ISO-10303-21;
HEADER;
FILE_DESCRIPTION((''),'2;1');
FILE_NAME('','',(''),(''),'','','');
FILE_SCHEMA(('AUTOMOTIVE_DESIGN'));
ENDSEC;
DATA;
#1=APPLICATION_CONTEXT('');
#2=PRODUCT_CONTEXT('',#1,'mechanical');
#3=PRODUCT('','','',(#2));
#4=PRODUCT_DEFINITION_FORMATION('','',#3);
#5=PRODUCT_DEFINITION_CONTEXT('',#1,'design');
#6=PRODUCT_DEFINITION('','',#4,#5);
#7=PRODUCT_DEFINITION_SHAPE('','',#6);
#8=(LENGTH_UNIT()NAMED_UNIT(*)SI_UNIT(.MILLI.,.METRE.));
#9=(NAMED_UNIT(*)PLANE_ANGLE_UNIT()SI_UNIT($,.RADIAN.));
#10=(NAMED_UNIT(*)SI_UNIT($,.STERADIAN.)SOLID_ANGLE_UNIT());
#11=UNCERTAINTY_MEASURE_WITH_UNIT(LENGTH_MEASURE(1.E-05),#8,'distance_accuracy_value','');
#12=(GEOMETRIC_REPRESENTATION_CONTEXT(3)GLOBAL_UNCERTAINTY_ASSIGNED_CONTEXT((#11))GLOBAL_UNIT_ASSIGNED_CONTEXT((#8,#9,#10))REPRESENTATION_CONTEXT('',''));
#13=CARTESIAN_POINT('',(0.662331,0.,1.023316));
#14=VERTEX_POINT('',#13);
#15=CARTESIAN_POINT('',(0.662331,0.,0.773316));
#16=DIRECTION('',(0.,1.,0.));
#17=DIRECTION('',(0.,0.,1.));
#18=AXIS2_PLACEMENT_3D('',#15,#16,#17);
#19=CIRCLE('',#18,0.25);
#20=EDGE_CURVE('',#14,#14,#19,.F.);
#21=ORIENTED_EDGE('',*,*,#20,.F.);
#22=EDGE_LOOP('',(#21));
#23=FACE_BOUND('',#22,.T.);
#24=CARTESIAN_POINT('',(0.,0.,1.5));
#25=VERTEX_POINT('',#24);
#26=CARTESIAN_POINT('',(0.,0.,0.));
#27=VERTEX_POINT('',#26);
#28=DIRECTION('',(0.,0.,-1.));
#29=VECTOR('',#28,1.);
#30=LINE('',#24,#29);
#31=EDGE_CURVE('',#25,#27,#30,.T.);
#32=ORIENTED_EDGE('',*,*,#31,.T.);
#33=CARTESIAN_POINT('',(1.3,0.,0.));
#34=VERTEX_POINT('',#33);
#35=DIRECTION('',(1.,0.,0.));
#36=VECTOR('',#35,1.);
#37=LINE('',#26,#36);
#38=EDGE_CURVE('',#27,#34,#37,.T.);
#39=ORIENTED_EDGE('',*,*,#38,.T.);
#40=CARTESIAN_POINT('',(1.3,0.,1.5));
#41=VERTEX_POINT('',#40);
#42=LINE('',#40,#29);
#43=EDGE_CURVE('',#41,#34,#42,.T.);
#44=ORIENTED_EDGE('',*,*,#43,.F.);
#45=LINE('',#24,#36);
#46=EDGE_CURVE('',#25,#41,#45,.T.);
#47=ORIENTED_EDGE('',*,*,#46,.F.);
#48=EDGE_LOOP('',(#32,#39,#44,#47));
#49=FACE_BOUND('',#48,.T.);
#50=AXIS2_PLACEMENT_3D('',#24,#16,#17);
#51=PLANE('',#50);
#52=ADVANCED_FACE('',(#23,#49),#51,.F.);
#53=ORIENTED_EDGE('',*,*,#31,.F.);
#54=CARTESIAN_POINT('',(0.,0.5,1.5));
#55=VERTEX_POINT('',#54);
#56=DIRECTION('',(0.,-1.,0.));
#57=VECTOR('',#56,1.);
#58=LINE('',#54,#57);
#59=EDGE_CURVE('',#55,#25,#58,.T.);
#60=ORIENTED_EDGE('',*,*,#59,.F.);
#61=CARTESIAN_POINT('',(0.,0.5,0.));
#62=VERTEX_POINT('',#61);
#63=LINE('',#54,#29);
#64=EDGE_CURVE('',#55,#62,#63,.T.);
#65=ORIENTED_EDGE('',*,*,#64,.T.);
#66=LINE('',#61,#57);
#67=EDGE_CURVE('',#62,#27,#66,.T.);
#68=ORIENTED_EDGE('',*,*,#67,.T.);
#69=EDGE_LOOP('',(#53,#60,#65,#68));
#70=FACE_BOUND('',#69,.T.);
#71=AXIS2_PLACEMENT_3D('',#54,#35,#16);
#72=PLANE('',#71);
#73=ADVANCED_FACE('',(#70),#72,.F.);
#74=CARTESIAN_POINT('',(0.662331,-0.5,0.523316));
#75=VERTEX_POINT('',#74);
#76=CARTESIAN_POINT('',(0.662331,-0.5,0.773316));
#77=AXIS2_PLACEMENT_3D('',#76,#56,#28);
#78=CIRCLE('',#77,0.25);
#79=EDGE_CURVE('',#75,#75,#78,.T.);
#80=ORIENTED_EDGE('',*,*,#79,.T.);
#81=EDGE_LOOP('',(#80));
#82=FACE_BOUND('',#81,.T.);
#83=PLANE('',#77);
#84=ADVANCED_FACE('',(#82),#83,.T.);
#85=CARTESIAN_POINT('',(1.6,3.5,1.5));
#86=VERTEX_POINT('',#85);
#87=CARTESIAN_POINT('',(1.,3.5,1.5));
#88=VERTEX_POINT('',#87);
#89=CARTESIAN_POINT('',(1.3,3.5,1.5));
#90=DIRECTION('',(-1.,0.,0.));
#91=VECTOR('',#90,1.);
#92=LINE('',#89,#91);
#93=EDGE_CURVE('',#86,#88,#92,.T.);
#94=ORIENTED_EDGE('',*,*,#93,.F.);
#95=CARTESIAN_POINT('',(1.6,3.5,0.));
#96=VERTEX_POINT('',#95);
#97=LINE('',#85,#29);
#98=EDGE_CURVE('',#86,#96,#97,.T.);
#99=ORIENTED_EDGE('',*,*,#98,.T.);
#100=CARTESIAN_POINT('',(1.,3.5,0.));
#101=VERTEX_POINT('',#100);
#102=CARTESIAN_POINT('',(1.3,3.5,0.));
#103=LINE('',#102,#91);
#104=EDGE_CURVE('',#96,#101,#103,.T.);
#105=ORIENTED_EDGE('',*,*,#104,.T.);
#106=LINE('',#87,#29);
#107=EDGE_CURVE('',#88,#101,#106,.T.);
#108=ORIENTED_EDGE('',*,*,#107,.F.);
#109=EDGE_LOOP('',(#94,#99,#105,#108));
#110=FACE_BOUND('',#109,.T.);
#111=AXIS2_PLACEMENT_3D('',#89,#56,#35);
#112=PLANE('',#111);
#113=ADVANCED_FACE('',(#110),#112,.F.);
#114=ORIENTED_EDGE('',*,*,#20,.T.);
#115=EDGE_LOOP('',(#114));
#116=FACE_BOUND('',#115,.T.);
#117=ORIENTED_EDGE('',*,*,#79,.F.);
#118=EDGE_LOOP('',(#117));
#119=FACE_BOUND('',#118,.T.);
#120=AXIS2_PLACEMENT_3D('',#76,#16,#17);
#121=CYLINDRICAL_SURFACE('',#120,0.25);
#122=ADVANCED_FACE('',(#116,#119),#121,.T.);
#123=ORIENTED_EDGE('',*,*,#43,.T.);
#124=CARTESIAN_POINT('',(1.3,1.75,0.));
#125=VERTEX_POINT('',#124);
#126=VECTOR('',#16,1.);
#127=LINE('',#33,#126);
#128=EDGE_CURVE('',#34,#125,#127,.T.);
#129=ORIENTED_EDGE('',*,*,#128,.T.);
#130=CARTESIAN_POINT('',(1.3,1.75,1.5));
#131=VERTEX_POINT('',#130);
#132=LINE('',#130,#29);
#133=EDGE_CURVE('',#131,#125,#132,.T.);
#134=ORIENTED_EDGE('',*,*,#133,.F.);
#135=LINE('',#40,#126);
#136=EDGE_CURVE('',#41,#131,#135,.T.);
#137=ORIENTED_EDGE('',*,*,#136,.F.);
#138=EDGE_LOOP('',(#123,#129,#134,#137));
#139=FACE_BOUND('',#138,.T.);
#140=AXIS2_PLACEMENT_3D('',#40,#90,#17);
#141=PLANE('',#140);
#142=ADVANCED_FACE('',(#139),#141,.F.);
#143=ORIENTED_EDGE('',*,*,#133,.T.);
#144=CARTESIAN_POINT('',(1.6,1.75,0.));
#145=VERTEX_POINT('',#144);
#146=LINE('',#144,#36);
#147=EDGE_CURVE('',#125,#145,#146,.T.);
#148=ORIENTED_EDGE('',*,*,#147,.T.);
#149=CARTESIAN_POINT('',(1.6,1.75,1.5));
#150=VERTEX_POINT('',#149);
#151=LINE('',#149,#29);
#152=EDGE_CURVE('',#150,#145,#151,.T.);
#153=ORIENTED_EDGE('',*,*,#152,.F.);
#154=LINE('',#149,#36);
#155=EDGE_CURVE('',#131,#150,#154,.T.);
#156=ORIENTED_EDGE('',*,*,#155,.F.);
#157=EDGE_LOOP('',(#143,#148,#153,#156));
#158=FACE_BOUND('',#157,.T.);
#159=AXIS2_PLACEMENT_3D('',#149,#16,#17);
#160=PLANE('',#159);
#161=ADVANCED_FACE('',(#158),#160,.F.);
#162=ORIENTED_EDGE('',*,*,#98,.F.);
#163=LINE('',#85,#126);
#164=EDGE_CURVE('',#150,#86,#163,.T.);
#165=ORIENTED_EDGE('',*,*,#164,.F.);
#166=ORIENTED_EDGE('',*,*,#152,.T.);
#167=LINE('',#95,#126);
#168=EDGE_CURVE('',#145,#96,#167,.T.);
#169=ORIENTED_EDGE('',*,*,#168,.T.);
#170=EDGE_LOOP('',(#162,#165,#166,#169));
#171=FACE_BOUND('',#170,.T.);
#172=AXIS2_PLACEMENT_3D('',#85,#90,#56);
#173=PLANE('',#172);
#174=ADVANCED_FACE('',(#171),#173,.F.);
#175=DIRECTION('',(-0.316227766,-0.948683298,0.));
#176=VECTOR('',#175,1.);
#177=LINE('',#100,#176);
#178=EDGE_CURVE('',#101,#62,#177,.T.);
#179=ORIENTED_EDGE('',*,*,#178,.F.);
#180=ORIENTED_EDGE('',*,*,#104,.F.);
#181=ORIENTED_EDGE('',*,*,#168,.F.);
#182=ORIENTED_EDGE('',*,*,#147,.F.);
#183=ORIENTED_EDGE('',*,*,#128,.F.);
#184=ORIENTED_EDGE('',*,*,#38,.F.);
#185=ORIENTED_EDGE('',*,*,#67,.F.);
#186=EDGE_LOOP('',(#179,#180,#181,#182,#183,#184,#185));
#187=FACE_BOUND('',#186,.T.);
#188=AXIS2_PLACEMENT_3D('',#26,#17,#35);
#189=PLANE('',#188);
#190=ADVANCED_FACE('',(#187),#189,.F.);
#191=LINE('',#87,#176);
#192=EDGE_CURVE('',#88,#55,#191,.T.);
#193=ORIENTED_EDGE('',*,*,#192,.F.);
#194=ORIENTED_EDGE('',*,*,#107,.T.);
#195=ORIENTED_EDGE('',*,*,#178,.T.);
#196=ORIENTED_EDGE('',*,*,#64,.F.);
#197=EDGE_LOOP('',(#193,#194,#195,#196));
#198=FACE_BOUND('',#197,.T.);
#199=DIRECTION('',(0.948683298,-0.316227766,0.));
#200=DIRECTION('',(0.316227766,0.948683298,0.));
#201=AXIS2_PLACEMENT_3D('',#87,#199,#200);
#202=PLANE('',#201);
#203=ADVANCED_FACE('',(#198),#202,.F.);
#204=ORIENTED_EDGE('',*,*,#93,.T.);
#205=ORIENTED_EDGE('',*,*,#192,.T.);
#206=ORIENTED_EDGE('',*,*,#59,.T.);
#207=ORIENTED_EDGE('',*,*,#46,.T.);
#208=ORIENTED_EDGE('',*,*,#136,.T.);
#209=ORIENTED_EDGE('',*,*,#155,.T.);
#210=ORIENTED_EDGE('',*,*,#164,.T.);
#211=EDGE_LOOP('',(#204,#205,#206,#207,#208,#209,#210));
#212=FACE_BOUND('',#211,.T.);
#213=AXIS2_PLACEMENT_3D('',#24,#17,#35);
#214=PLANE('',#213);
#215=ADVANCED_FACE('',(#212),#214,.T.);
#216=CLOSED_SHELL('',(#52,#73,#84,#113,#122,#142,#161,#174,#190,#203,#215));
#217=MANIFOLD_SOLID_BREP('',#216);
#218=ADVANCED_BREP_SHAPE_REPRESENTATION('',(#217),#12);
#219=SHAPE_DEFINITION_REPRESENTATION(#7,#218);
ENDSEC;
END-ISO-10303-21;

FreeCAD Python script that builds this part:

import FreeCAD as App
import Part
import Sketcher
from FreeCAD import Vector


def add_polygon(sketch, points):
    """Adds a closed chain of lines whose ends are joined by coincident constraints."""
    first, n = sketch.GeometryCount, len(points)
    for a, b in zip(points, points[1:] + points[:1]):
        sketch.addGeometry(Part.LineSegment(App.Vector(*a, 0), App.Vector(*b, 0)), False)
    for i in range(n):
        sketch.addConstraint(Sketcher.Constraint("Coincident", first + i, 2, first + (i + 1) % n, 1))

doc = App.newDocument("Part")
body = doc.addObject("PartDesign::Body", "Body")

# Sketch on XY plane
sketch1 = body.newObject("Sketcher::SketchObject", "Sketch")
sketch1.AttachmentSupport = (doc.getObject("XY_Plane"), [""])
sketch1.MapMode = "FlatFace"
add_polygon(sketch1, [(0, 0), (1.3, 0), (1.3, 1.75), (1.6, 1.75), (1.6, 3.5), (1, 3.5), (0, 0.5)])  # lines 0-6
sketch1.addConstraint(Sketcher.Constraint("Horizontal", 0))
sketch1.addConstraint(Sketcher.Constraint("Vertical", 1))
sketch1.addConstraint(Sketcher.Constraint("Horizontal", 2))
sketch1.addConstraint(Sketcher.Constraint("Vertical", 3))
sketch1.addConstraint(Sketcher.Constraint("Horizontal", 4))
sketch1.addConstraint(Sketcher.Constraint("Vertical", 6))
sketch1.addConstraint(Sketcher.Constraint("Coincident", 6, 2, -1, 1))
sketch1.addConstraint(Sketcher.Constraint("Equal", 1, 3))
sketch1.addConstraint(Sketcher.Constraint("DistanceX", 0, 1, 0, 2, 1.3))
sketch1.addConstraint(Sketcher.Constraint("DistanceX", 2, 1, 2, 2, 0.3))
sketch1.addConstraint(Sketcher.Constraint("DistanceX", 4, 2, 4, 1, 0.6))
sketch1.addConstraint(Sketcher.Constraint("DistanceY", 6, 2, 6, 1, 0.5))
sketch1.addConstraint(Sketcher.Constraint("DistanceY", 5, 2, 4, 2, 3.0))
pad1 = body.newObject("PartDesign::Pad", "Pad")
pad1.Profile = sketch1
pad1.Length = 1.5

# Sketch on XZ plane
sketch2 = body.newObject("Sketcher::SketchObject", "Sketch001")
sketch2.AttachmentSupport = (doc.getObject("XZ_Plane"), [""])
sketch2.MapMode = "FlatFace"
sketch2.addGeometry(Part.Circle(Vector(0.66, 0.77, 0), Vector(0, 0, 1), 0.25), False)
sketch2.addConstraint(Sketcher.Constraint("Diameter", 0, 0.5))
sketch2.addConstraint(Sketcher.Constraint("DistanceX", -1, 1, 0, 3, 0.662331))
sketch2.addConstraint(Sketcher.Constraint("DistanceY", -1, 1, 0, 3, 0.773316))
pad2 = body.newObject("PartDesign::Pad", "Pad001")
pad2.Profile = sketch2
pad2.Length = 0.5

doc.recompute()
